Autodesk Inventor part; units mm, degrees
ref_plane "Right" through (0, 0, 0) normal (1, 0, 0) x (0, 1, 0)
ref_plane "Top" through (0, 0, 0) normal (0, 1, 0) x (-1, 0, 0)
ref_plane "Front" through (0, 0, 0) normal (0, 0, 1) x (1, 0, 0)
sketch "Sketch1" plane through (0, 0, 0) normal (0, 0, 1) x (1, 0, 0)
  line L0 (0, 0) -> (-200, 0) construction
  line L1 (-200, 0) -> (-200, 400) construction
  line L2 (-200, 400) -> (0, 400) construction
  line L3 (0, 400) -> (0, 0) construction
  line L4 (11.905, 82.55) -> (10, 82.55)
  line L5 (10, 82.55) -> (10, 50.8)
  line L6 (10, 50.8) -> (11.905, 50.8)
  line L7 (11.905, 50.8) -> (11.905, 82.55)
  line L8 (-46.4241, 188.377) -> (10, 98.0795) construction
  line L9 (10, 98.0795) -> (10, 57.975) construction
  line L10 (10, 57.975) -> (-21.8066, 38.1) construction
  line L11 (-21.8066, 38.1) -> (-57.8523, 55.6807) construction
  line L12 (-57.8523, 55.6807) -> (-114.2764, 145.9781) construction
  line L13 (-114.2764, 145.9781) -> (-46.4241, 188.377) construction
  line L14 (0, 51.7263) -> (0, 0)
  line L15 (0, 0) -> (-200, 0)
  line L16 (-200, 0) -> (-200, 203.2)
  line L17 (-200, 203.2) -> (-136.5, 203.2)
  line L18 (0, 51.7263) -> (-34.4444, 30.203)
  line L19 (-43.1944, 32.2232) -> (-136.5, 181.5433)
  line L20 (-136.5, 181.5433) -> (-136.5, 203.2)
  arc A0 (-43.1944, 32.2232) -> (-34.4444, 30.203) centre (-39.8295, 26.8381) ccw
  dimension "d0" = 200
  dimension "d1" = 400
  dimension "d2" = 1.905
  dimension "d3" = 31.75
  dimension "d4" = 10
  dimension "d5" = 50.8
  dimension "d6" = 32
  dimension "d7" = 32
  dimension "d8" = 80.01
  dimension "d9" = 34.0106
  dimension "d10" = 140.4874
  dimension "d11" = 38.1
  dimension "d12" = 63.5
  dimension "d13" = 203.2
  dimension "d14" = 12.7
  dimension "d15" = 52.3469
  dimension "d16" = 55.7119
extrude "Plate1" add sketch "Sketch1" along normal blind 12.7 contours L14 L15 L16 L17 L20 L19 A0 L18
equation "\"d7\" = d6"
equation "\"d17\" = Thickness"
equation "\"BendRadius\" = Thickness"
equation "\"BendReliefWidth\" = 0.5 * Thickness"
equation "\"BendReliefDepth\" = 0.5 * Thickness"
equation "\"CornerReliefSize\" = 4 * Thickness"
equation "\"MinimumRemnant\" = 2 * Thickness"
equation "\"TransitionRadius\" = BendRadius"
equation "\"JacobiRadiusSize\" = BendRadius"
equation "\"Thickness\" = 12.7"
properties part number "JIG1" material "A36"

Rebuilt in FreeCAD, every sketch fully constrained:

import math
import FreeCAD as App
import Part
import Sketcher

V = App.Vector
Q = App.Units.Quantity

doc = App.newDocument("Part")
body = doc.addObject("PartDesign::Body", "Body")

# Sketch on XY plane
sketch1 = doc.addObject("Sketcher::SketchObject", "Sketch")
body.addObject(sketch1)
sketch1.AttachmentSupport = (doc.XY_Plane, [""])
sketch1.MapMode = "FlatFace"
sketch1.addGeometry(Part.LineSegment(V(0, 0, 0), V(0, 52, 0)), False)
sketch1.addGeometry(Part.LineSegment(V(0, 52, 0), V(-34, 30, 0)), False)
sketch1.addGeometry(Part.ArcOfCircle(Part.Circle(V(-40, 27, 0), V(0, 0, 1), 6), math.radians(122), math.radians(392)), False)
sketch1.addGeometry(Part.LineSegment(V(-43, 32, 0), V(-136, 182, 0)), False)
sketch1.addGeometry(Part.LineSegment(V(-136, 182, 0), V(-136, 203, 0)), False)
sketch1.addGeometry(Part.LineSegment(V(-136, 203, 0), V(-200, 203, 0)), False)
sketch1.addGeometry(Part.LineSegment(V(-200, 203, 0), V(-200, 0, 0)), False)
sketch1.addGeometry(Part.LineSegment(V(-200, 0, 0), V(0, 0, 0)), False)
sketch1.addConstraint(Sketcher.Constraint("Coincident", 0, 2, 1, 1))
sketch1.addConstraint(Sketcher.Constraint("Coincident", 1, 2, 2, 2))
sketch1.addConstraint(Sketcher.Constraint("Coincident", 2, 1, 3, 1))
sketch1.addConstraint(Sketcher.Constraint("Coincident", 3, 2, 4, 1))
sketch1.addConstraint(Sketcher.Constraint("Coincident", 4, 2, 5, 1))
sketch1.addConstraint(Sketcher.Constraint("Coincident", 5, 2, 6, 1))
sketch1.addConstraint(Sketcher.Constraint("Coincident", 6, 2, 7, 1))
sketch1.addConstraint(Sketcher.Constraint("Coincident", 7, 2, 0, 1))
sketch1.addConstraint(Sketcher.Constraint("Vertical", 0))
sketch1.addConstraint(Sketcher.Constraint("Vertical", 4))
sketch1.addConstraint(Sketcher.Constraint("Horizontal", 5))
sketch1.addConstraint(Sketcher.Constraint("Vertical", 6))
sketch1.addConstraint(Sketcher.Constraint("Horizontal", 7))
sketch1.addConstraint(Sketcher.Constraint("Coincident", 7, 2, -1, 1))
sketch1.addConstraint(Sketcher.Constraint("Perpendicular", 1, 3))
sketch1.addConstraint(Sketcher.Constraint("DistanceY", 6, 2, 6, 1, Q("8 in")))
sketch1.addConstraint(Sketcher.Constraint("Radius", 2, Q("0.25 in")))
sketch1.addConstraint(Sketcher.Constraint("DistanceX", 5, 2, 5, 1, Q("2.5 in")))
sketch1.addConstraint(Sketcher.Constraint("Angle", 1, Q("-148 deg")))
sketch1.addConstraint(Sketcher.Constraint("DistanceX", 7, 1, 7, 2, 200.0))
sketch1.addConstraint(Sketcher.Constraint("DistanceX", 2, 3, 1, 2, Q("0.212 in")))
sketch1.addConstraint(Sketcher.Constraint("DistanceY", 2, 3, 2, 1, Q("0.212 in")))
sketch1.addConstraint(Sketcher.Constraint("Distance", 3, Q("6.9321 in")))
sketch1.addConstraint(Sketcher.Constraint("DistanceY", 0, 1, 0, 2, 51.7263))
pad1 = doc.addObject("PartDesign::Pad", "Pad")
body.addObject(pad1)
pad1.Profile = sketch1
pad1.Length = Q("0.5 in")

doc.recompute()
